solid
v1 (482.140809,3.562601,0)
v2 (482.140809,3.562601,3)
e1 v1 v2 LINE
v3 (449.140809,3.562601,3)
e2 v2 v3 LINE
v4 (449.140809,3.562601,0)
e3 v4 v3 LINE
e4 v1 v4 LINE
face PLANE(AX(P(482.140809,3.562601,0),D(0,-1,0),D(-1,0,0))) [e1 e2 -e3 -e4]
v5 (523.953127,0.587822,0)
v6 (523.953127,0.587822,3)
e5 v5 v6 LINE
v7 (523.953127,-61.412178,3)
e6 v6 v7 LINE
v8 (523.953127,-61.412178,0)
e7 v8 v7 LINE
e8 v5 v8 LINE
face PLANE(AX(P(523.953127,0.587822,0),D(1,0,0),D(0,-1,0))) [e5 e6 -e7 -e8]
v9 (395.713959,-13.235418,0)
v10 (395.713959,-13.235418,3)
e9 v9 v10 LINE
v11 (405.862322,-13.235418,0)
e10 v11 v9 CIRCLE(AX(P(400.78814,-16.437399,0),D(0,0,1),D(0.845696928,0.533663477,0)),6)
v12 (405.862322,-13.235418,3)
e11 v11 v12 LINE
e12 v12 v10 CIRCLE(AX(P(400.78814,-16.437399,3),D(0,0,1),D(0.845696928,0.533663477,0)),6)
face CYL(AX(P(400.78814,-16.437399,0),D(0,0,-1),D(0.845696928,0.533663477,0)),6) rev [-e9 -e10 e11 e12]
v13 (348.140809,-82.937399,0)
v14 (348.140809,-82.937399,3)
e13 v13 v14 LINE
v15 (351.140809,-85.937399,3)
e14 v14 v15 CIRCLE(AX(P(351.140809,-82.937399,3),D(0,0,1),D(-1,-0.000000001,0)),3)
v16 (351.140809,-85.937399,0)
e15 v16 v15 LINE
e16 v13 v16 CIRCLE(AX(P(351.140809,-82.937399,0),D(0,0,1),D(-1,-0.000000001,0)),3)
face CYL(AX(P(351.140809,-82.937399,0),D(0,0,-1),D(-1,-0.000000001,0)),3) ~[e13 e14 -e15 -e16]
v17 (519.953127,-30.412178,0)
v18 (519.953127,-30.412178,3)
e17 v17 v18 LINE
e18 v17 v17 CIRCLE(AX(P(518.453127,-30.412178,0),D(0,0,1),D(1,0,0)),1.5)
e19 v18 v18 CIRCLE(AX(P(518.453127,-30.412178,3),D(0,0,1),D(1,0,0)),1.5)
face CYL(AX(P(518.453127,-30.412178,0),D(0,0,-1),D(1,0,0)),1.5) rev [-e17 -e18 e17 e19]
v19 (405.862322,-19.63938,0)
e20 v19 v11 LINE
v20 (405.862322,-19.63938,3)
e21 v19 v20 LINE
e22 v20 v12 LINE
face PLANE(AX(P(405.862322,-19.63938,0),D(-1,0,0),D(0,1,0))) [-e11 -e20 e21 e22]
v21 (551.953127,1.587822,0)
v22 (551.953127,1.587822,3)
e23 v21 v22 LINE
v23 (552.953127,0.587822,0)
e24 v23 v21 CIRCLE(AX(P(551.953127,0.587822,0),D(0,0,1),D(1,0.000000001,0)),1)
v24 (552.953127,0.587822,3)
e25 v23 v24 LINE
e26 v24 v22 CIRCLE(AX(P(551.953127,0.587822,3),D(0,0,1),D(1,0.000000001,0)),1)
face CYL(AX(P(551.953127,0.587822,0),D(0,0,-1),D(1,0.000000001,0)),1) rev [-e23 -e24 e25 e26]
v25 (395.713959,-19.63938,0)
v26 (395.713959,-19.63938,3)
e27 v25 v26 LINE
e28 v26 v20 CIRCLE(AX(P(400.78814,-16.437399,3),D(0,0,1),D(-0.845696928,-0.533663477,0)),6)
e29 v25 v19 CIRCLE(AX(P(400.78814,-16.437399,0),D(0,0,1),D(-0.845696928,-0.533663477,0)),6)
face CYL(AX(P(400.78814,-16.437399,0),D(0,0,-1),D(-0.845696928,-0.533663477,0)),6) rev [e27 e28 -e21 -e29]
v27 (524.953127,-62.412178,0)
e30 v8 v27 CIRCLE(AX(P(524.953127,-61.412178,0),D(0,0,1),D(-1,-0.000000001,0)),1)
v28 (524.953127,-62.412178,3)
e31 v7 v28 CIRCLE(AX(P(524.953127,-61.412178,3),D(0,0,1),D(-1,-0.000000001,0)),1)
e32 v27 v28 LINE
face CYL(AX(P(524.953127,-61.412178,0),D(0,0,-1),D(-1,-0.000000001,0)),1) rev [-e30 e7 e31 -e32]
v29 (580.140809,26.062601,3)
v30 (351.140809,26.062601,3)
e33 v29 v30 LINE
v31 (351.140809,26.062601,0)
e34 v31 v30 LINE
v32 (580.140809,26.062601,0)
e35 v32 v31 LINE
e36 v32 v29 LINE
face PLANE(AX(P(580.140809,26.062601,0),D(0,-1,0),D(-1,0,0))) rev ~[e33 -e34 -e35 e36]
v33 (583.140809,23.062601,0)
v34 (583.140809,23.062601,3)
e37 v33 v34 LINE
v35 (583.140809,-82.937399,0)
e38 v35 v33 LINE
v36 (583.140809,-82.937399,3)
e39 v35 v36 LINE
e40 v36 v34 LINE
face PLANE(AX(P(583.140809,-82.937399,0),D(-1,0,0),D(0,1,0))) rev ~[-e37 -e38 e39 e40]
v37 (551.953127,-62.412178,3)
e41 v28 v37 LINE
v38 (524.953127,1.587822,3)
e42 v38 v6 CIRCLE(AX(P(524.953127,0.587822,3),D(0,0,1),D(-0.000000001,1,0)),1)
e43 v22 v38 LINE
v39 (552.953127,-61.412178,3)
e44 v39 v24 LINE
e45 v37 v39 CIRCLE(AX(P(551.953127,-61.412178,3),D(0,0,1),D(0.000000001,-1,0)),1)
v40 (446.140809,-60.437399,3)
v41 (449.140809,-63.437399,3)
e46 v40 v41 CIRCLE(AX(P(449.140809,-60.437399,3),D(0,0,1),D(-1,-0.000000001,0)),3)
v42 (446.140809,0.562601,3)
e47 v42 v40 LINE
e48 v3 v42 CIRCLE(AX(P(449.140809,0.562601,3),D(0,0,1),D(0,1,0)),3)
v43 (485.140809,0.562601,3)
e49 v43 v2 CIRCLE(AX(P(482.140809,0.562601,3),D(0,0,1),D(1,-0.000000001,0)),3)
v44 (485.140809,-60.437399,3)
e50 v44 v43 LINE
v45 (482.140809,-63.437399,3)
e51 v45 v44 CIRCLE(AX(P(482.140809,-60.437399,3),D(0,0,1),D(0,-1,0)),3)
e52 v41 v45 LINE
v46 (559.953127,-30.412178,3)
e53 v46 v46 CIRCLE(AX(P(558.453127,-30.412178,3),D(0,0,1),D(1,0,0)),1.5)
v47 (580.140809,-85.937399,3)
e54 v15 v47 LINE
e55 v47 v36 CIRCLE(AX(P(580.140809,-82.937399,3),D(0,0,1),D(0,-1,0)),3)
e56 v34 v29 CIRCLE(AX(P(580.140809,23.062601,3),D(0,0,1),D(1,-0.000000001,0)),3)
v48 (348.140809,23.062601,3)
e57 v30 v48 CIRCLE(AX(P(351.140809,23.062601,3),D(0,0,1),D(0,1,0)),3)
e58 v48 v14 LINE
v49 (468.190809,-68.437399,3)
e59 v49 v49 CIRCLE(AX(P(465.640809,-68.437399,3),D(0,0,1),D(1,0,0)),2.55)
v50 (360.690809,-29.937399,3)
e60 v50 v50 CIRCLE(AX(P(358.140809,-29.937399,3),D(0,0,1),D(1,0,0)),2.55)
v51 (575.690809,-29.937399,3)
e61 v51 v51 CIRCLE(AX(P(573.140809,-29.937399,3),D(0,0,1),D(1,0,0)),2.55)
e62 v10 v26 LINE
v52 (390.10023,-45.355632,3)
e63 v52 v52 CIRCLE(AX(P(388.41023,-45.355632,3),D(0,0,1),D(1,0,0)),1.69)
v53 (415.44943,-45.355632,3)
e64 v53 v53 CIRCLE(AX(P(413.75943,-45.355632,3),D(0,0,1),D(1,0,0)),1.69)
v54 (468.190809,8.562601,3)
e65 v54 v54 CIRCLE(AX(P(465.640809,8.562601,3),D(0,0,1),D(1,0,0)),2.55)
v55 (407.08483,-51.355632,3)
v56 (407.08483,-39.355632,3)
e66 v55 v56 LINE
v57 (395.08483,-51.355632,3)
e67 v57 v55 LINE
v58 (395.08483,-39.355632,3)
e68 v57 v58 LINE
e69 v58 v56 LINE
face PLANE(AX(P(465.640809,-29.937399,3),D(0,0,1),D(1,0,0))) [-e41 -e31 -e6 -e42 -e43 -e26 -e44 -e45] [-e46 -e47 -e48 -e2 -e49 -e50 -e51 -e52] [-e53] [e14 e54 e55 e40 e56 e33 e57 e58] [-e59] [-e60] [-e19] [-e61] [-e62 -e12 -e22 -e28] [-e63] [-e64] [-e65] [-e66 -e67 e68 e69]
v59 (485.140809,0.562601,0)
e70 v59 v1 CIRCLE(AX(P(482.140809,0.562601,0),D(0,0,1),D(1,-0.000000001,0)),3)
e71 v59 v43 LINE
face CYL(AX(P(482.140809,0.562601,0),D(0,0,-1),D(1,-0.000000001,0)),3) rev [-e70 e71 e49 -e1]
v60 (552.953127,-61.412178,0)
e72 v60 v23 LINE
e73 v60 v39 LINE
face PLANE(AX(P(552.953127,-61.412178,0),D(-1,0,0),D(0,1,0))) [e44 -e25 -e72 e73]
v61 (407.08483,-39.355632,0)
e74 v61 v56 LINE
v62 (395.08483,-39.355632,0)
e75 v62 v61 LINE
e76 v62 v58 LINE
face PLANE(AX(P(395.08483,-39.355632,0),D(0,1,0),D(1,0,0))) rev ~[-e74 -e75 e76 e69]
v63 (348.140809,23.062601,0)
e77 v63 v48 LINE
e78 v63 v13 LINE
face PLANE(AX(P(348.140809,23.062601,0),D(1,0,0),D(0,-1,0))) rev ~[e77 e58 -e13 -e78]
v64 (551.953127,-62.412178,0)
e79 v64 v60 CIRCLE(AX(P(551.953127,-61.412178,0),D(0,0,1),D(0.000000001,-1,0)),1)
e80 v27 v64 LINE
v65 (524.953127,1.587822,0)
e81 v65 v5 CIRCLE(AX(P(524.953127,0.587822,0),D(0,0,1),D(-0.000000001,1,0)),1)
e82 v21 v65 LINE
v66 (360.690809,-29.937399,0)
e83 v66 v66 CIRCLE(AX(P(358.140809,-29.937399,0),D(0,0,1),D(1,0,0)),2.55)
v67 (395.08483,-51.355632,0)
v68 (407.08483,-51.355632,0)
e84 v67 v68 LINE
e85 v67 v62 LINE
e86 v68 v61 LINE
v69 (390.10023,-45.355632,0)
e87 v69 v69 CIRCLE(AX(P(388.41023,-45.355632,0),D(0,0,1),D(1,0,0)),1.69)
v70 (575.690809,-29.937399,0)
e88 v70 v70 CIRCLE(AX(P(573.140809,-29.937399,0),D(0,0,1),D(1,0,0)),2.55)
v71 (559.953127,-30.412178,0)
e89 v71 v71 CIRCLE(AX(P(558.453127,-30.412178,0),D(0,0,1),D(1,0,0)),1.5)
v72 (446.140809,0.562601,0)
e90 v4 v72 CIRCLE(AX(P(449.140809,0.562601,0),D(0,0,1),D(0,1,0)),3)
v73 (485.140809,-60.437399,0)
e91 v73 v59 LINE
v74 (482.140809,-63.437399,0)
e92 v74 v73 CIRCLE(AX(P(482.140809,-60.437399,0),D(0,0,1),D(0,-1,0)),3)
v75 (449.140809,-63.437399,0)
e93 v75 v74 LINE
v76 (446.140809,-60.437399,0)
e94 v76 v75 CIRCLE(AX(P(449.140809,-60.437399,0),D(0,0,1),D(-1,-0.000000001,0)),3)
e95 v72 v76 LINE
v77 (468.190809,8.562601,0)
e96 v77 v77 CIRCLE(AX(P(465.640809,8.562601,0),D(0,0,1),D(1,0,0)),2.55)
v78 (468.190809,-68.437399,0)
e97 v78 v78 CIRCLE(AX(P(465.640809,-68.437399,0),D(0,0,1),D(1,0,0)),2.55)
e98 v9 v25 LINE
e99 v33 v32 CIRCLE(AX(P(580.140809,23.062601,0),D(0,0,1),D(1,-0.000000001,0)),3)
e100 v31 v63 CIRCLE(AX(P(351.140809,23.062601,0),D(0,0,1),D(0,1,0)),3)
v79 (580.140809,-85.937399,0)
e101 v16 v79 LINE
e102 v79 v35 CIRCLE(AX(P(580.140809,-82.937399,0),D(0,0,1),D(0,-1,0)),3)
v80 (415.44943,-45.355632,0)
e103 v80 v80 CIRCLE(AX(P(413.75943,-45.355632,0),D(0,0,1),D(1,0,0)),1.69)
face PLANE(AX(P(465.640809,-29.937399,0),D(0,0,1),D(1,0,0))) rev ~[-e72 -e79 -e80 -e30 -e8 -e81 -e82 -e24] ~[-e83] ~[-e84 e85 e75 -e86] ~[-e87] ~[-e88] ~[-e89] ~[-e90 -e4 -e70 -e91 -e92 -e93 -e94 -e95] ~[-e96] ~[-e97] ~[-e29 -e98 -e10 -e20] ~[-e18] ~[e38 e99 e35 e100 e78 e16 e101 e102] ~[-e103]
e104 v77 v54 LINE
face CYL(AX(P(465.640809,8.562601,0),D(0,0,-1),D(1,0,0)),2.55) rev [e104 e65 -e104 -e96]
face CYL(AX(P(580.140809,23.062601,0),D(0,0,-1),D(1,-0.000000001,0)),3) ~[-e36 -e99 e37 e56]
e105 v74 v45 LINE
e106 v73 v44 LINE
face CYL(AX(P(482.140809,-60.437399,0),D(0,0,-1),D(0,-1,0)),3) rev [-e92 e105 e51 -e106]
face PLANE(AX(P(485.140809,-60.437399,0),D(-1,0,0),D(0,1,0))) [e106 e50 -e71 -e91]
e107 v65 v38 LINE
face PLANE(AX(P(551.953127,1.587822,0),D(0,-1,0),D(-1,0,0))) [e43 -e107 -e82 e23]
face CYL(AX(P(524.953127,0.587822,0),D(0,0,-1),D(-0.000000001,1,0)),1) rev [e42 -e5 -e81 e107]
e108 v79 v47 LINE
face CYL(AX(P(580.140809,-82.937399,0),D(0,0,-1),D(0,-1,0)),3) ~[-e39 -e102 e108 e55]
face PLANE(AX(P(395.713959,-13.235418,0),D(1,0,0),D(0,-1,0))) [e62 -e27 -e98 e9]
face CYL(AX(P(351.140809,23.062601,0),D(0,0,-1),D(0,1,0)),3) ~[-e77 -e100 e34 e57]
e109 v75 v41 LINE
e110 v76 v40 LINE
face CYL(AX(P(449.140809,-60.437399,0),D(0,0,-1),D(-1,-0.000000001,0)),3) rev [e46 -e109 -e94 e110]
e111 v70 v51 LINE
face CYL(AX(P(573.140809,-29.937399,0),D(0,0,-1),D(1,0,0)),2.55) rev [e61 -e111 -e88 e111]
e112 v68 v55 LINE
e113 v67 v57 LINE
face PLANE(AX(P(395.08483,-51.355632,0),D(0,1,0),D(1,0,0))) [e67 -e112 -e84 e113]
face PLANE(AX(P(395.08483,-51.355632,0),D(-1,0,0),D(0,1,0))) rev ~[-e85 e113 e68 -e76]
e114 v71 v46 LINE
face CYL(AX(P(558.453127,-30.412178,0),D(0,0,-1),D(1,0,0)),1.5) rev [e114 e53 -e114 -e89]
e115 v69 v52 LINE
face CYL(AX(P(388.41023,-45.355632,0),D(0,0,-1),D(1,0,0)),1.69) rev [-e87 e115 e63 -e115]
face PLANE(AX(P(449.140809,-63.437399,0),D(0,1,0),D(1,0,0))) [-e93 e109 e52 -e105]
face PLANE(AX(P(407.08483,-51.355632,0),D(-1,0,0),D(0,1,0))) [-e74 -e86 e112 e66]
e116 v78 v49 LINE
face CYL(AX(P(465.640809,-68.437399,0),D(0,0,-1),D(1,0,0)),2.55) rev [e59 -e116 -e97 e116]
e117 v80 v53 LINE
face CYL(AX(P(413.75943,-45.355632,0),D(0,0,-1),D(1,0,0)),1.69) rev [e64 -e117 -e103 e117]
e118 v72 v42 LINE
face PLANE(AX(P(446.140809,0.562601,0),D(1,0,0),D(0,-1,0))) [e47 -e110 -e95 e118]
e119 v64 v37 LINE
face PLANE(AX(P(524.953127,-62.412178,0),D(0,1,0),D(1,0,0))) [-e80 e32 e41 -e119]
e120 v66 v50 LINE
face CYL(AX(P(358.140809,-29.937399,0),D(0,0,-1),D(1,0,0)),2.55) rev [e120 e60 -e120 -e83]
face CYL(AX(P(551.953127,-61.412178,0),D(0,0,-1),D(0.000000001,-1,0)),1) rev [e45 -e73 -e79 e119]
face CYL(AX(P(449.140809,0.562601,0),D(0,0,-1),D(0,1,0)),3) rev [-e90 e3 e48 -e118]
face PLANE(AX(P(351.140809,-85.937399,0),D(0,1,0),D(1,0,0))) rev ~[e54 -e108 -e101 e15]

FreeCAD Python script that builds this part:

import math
import FreeCAD as App
import Part
import Sketcher

V = App.Vector
Q = App.Units.Quantity

doc = App.newDocument("Part")
params = doc.addObject("Spreadsheet::Sheet", "Params")
for row, (alias, value) in enumerate([
    ("sketch1_diameter", "3 mm"),
    ("sketch1_radius", "3 mm"),
    ("sketch1_radius2", "1 mm"),
    ("sketch1_radius3", "6 mm"),
    ("sketch1_diameter2", "5.1 mm"),
    ("pad1_length", "3 mm"),
], start=1):
    params.set(f"A{row}", alias)
    params.set(f"B{row}", "=" + value)
    params.setAlias(f"B{row}", alias)

body = doc.addObject("PartDesign::Body", "Body")

# Sketch on XY plane
sketch1 = doc.addObject("Sketcher::SketchObject", "Sketch")
body.addObject(sketch1)
sketch1.AttachmentSupport = (doc.XY_Plane, [""])
sketch1.MapMode = "FlatFace"
sketch1.addGeometry([
    Part.LineSegment(V(580.140809, 26.062601, 0), V(351.140809, 26.062601, 0)),  # 0
    Part.ArcOfCircle(Part.Circle(V(351.140809, 23.062601, 0), V(0, 0, 1), 3), math.radians(90), math.radians(180)),  # 1
    Part.LineSegment(V(348.140809, 23.062601, 0), V(348.140809, -82.937399, 0)),  # 2
    Part.ArcOfCircle(Part.Circle(V(351.140809, -82.937399, 0), V(0, 0, 1), 3), math.radians(-180), math.radians(-90)),  # 3
    Part.LineSegment(V(351.140809, -85.937399, 0), V(580.140809, -85.937399, 0)),  # 4
    Part.ArcOfCircle(Part.Circle(V(580.140809, -82.937399, 0), V(0, 0, 1), 3), math.radians(-90), math.radians(0)),  # 5
    Part.LineSegment(V(583.140809, -82.937399, 0), V(583.140809, 23.062601, 0)),  # 6
    Part.ArcOfCircle(Part.Circle(V(580.140809, 23.062601, 0), V(0, 0, 1), 3), math.radians(0), math.radians(90)),  # 7
    Part.Circle(V(388.41023, -45.355632, 0), V(0, 0, 1), 1.69),  # 8
    Part.LineSegment(V(407.08483, -51.355632, 0), V(395.08483, -51.355632, 0)),  # 9
    Part.LineSegment(V(395.08483, -51.355632, 0), V(395.08483, -39.355632, 0)),  # 10
    Part.LineSegment(V(395.08483, -39.355632, 0), V(407.08483, -39.355632, 0)),  # 11
    Part.LineSegment(V(407.08483, -39.355632, 0), V(407.08483, -51.355632, 0)),  # 12
    Part.Circle(V(358.140809, -29.937399, 0), V(0, 0, 1), 2.55),  # 13
    Part.Circle(V(413.75943, -45.355632, 0), V(0, 0, 1), 1.69),  # 14
    Part.Circle(V(465.640809, -68.437399, 0), V(0, 0, 1), 2.55),  # 15
    Part.LineSegment(V(449.140809, 3.562601, 0), V(482.140809, 3.562601, 0)),  # 16
    Part.ArcOfCircle(Part.Circle(V(482.140809, 0.562601, 0), V(0, 0, 1), 3), math.radians(0), math.radians(90)),  # 17
    Part.LineSegment(V(485.140809, 0.562601, 0), V(485.140809, -60.437399, 0)),  # 18
    Part.ArcOfCircle(Part.Circle(V(482.140809, -60.437399, 0), V(0, 0, 1), 3), math.radians(-90), math.radians(0)),  # 19
    Part.LineSegment(V(482.140809, -63.437399, 0), V(449.140809, -63.437399, 0)),  # 20
    Part.ArcOfCircle(Part.Circle(V(449.140809, -60.437399, 0), V(0, 0, 1), 3), math.radians(-180), math.radians(-90)),  # 21
    Part.LineSegment(V(446.140809, -60.437399, 0), V(446.140809, 0.562601, 0)),  # 22
    Part.ArcOfCircle(Part.Circle(V(449.140809, 0.562601, 0), V(0, 0, 1), 3), math.radians(90), math.radians(180)),  # 23
    Part.Circle(V(518.453127, -30.412178, 0), V(0, 0, 1), 1.5),  # 24
    Part.LineSegment(V(524.953127, 1.587822, 0), V(551.953127, 1.587822, 0)),  # 25
    Part.ArcOfCircle(Part.Circle(V(551.953127, 0.587822, 0), V(0, 0, 1), 1), math.radians(0), math.radians(90)),  # 26
    Part.LineSegment(V(552.953127, 0.587822, 0), V(552.953127, -61.412178, 0)),  # 27
    Part.ArcOfCircle(Part.Circle(V(551.953127, -61.412178, 0), V(0, 0, 1), 1), math.radians(-90), math.radians(0)),  # 28
    Part.LineSegment(V(551.953127, -62.412178, 0), V(524.953127, -62.412178, 0)),  # 29
    Part.ArcOfCircle(Part.Circle(V(524.953127, -61.412178, 0), V(0, 0, 1), 1), math.radians(-180), math.radians(-90)),  # 30
    Part.LineSegment(V(523.953127, -61.412178, 0), V(523.953127, 0.587822, 0)),  # 31
    Part.ArcOfCircle(Part.Circle(V(524.953127, 0.587822, 0), V(0, 0, 1), 1), math.radians(90), math.radians(180)),  # 32
    Part.Circle(V(558.453127, -30.412178, 0), V(0, 0, 1), 1.5),  # 33
    Part.Circle(V(573.140809, -29.937399, 0), V(0, 0, 1), 2.55),  # 34
    Part.LineSegment(V(405.862322, -13.235418, 0), V(405.862322, -19.63938, 0)),  # 35
    Part.ArcOfCircle(Part.Circle(V(400.78814, -16.437399, 0), V(0, 0, 1), 6), math.radians(-147.746683), math.radians(-32.253317)),  # 36
    Part.LineSegment(V(395.713959, -19.63938, 0), V(395.713959, -13.235418, 0)),  # 37
    Part.ArcOfCircle(Part.Circle(V(400.78814, -16.437399, 0), V(0, 0, 1), 6), math.radians(32.253317), math.radians(147.746683)),  # 38
    Part.Circle(V(465.640809, 8.562601, 0), V(0, 0, 1), 2.55),  # 39
], False)
sketch1.addConstraint([
    Sketcher.Constraint("Tangent", 0, 2, 1, 1),
    Sketcher.Constraint("Tangent", 1, 2, 2, 1),
    Sketcher.Constraint("Tangent", 2, 2, 3, 1),
    Sketcher.Constraint("Tangent", 3, 2, 4, 1),
    Sketcher.Constraint("Tangent", 4, 2, 5, 1),
    Sketcher.Constraint("Tangent", 5, 2, 6, 1),
    Sketcher.Constraint("Tangent", 6, 2, 7, 1),
    Sketcher.Constraint("Tangent", 7, 2, 0, 1),
    Sketcher.Constraint("Coincident", 9, 2, 10, 1),
    Sketcher.Constraint("Coincident", 10, 2, 11, 1),
    Sketcher.Constraint("Coincident", 11, 2, 12, 1),
    Sketcher.Constraint("Coincident", 12, 2, 9, 1),
    Sketcher.Constraint("Tangent", 16, 2, 17, 2),
    Sketcher.Constraint("Tangent", 17, 1, 18, 1),
    Sketcher.Constraint("Tangent", 18, 2, 19, 2),
    Sketcher.Constraint("Tangent", 19, 1, 20, 1),
    Sketcher.Constraint("Tangent", 20, 2, 21, 2),
    Sketcher.Constraint("Tangent", 21, 1, 22, 1),
    Sketcher.Constraint("Tangent", 22, 2, 23, 2),
    Sketcher.Constraint("Tangent", 23, 1, 16, 1),
    Sketcher.Constraint("Tangent", 25, 2, 26, 2),
    Sketcher.Constraint("Tangent", 26, 1, 27, 1),
    Sketcher.Constraint("Tangent", 27, 2, 28, 2),
    Sketcher.Constraint("Tangent", 28, 1, 29, 1),
    Sketcher.Constraint("Tangent", 29, 2, 30, 2),
    Sketcher.Constraint("Tangent", 30, 1, 31, 1),
    Sketcher.Constraint("Tangent", 31, 2, 32, 2),
    Sketcher.Constraint("Tangent", 32, 1, 25, 1),
    Sketcher.Constraint("Coincident", 35, 2, 36, 2),
    Sketcher.Constraint("Coincident", 36, 1, 37, 1),
    Sketcher.Constraint("Coincident", 37, 2, 38, 2),
    Sketcher.Constraint("Coincident", 38, 1, 35, 1),
    Sketcher.Constraint("Horizontal", 0),
    Sketcher.Constraint("Vertical", 2),
    Sketcher.Constraint("Horizontal", 4),
    Sketcher.Constraint("Vertical", 6),
    Sketcher.Constraint("Horizontal", 9),
    Sketcher.Constraint("Vertical", 10),
    Sketcher.Constraint("Horizontal", 11),
    Sketcher.Constraint("Vertical", 12),
    Sketcher.Constraint("Horizontal", 16),
    Sketcher.Constraint("Vertical", 18),
    Sketcher.Constraint("Horizontal", 20),
    Sketcher.Constraint("Vertical", 22),
    Sketcher.Constraint("Horizontal", 25),
    Sketcher.Constraint("Vertical", 27),
    Sketcher.Constraint("Horizontal", 29),
    Sketcher.Constraint("Vertical", 31),
    Sketcher.Constraint("Vertical", 35),
    Sketcher.Constraint("Vertical", 37),
    Sketcher.Constraint("Coincident", 38, 3, 36, 3),
    Sketcher.Constraint("Equal", 1, 3),
    Sketcher.Constraint("Equal", 3, 5),
    Sketcher.Constraint("Equal", 5, 7),
    Sketcher.Constraint("Equal", 8, 14),
    Sketcher.Constraint("Equal", 13, 15),
    Sketcher.Constraint("Equal", 7, 17),
    Sketcher.Constraint("Equal", 17, 19),
    Sketcher.Constraint("Equal", 19, 21),
    Sketcher.Constraint("Equal", 21, 23),
    Sketcher.Constraint("Equal", 26, 28),
    Sketcher.Constraint("Equal", 28, 30),
    Sketcher.Constraint("Equal", 30, 32),
    Sketcher.Constraint("Equal", 24, 33),
    Sketcher.Constraint("Equal", 15, 34),
    Sketcher.Constraint("Equal", 36, 38),
    Sketcher.Constraint("Equal", 34, 39),
    Sketcher.Constraint("Horizontal", 8, 3, 14, 3),
    Sketcher.Constraint("Horizontal", 24, 3, 33, 3),
    Sketcher.Constraint("Horizontal", 13, 3, 34, 3),
    Sketcher.Constraint("Horizontal", 35, 2, 36, 1),
    Sketcher.Constraint("Vertical", 15, 3, 39, 3),
    Sketcher.Constraint("Equal", 11, 10),
    Sketcher.Constraint("Diameter", 24, Q("3 mm")),
    Sketcher.Constraint("Radius", 1, Q("3 mm")),
    Sketcher.Constraint("Radius", 26, Q("1 mm")),
    Sketcher.Constraint("Radius", 36, Q("6 mm")),
    Sketcher.Constraint("Diameter", 13, Q("5.1 mm")),
    Sketcher.Constraint("Diameter", 8, Q("3.38 mm")),
    Sketcher.Constraint("DistanceX", 0, 2, 0, 1, Q("229 mm")),
    Sketcher.Constraint("DistanceX", 9, 2, 9, 1, Q("12 mm")),
    Sketcher.Constraint("DistanceX", 16, 1, 16, 2, Q("33 mm")),
    Sketcher.Constraint("DistanceX", 25, 1, 25, 2, Q("27 mm")),
    Sketcher.Constraint("DistanceY", 2, 2, 2, 1, Q("106 mm")),
    Sketcher.Constraint("DistanceY", 18, 2, 18, 1, Q("61 mm")),
    Sketcher.Constraint("DistanceY", 27, 2, 27, 1, Q("62 mm")),
    Sketcher.Constraint("DistanceX", 3, 3, 13, 3, Q("7 mm")),
    Sketcher.Constraint("DistanceY", 3, 3, 13, 3, Q("53 mm")),
    Sketcher.Constraint("DistanceY", 15, 3, 17, 3, Q("69 mm")),
    Sketcher.Constraint("DistanceX", 17, 3, 7, 3, Q("98 mm")),
    Sketcher.Constraint("DistanceY", 24, 3, 26, 3, Q("31 mm")),
    Sketcher.Constraint("DistanceX", 24, 3, 33, 3, Q("40 mm")),
    Sketcher.Constraint("DistanceX", 34, 3, 5, 3, Q("7 mm")),
    Sketcher.Constraint("DistanceY", 36, 3, 23, 3, Q("17 mm")),
    Sketcher.Constraint("DistanceY", 23, 3, 39, 3, Q("8 mm")),
    Sketcher.Constraint("DistanceY", 9, 2, 8, 3, Q("6 mm")),
    Sketcher.Constraint("DistanceX", 13, 3, 15, 3, Q("107.5 mm")),
    Sketcher.Constraint("DistanceY", 15, 3, 13, 3, Q("38.5 mm")),
    Sketcher.Constraint("DistanceX", 24, 3, 26, 3, Q("33.5 mm")),
    Sketcher.Constraint("DistanceY", 35, 2, 35, 1, Q("6.403962 mm")),
    Sketcher.Constraint("DistanceY", -1, 1, 1, 3, Q("23.062601 mm")),
    Sketcher.Constraint("DistanceX", 8, 3, 14, 3, Q("25.3492 mm")),
    Sketcher.Constraint("DistanceX", 8, 3, 9, 2, Q("6.6746 mm")),
    Sketcher.Constraint("DistanceX", -1, 1, 1, 3, Q("351.140809 mm")),
    Sketcher.Constraint("DistanceX", -1, 1, 8, 3, Q("388.41023 mm")),
    Sketcher.Constraint("DistanceY", 8, 3, -1, 1, Q("45.355632 mm")),
    Sketcher.Constraint("DistanceX", -1, 1, 36, 3, Q("400.78814 mm")),
    Sketcher.Constraint("DistanceY", 19, 3, 24, 3, Q("30.025221 mm")),
    Sketcher.Constraint("DistanceX", -1, 1, 24, 3, Q("518.453127 mm")),
])
sketch1.setExpression("Constraints[73]", "Params.sketch1_diameter")
sketch1.setExpression("Constraints[74]", "Params.sketch1_radius")
sketch1.setExpression("Constraints[75]", "Params.sketch1_radius2")
sketch1.setExpression("Constraints[76]", "Params.sketch1_radius3")
sketch1.setExpression("Constraints[77]", "Params.sketch1_diameter2")
pad1 = doc.addObject("PartDesign::Pad", "Pad")
body.addObject(pad1)
pad1.Profile = sketch1
pad1.setExpression("Length", "Params.pad1_length")

doc.recompute()
